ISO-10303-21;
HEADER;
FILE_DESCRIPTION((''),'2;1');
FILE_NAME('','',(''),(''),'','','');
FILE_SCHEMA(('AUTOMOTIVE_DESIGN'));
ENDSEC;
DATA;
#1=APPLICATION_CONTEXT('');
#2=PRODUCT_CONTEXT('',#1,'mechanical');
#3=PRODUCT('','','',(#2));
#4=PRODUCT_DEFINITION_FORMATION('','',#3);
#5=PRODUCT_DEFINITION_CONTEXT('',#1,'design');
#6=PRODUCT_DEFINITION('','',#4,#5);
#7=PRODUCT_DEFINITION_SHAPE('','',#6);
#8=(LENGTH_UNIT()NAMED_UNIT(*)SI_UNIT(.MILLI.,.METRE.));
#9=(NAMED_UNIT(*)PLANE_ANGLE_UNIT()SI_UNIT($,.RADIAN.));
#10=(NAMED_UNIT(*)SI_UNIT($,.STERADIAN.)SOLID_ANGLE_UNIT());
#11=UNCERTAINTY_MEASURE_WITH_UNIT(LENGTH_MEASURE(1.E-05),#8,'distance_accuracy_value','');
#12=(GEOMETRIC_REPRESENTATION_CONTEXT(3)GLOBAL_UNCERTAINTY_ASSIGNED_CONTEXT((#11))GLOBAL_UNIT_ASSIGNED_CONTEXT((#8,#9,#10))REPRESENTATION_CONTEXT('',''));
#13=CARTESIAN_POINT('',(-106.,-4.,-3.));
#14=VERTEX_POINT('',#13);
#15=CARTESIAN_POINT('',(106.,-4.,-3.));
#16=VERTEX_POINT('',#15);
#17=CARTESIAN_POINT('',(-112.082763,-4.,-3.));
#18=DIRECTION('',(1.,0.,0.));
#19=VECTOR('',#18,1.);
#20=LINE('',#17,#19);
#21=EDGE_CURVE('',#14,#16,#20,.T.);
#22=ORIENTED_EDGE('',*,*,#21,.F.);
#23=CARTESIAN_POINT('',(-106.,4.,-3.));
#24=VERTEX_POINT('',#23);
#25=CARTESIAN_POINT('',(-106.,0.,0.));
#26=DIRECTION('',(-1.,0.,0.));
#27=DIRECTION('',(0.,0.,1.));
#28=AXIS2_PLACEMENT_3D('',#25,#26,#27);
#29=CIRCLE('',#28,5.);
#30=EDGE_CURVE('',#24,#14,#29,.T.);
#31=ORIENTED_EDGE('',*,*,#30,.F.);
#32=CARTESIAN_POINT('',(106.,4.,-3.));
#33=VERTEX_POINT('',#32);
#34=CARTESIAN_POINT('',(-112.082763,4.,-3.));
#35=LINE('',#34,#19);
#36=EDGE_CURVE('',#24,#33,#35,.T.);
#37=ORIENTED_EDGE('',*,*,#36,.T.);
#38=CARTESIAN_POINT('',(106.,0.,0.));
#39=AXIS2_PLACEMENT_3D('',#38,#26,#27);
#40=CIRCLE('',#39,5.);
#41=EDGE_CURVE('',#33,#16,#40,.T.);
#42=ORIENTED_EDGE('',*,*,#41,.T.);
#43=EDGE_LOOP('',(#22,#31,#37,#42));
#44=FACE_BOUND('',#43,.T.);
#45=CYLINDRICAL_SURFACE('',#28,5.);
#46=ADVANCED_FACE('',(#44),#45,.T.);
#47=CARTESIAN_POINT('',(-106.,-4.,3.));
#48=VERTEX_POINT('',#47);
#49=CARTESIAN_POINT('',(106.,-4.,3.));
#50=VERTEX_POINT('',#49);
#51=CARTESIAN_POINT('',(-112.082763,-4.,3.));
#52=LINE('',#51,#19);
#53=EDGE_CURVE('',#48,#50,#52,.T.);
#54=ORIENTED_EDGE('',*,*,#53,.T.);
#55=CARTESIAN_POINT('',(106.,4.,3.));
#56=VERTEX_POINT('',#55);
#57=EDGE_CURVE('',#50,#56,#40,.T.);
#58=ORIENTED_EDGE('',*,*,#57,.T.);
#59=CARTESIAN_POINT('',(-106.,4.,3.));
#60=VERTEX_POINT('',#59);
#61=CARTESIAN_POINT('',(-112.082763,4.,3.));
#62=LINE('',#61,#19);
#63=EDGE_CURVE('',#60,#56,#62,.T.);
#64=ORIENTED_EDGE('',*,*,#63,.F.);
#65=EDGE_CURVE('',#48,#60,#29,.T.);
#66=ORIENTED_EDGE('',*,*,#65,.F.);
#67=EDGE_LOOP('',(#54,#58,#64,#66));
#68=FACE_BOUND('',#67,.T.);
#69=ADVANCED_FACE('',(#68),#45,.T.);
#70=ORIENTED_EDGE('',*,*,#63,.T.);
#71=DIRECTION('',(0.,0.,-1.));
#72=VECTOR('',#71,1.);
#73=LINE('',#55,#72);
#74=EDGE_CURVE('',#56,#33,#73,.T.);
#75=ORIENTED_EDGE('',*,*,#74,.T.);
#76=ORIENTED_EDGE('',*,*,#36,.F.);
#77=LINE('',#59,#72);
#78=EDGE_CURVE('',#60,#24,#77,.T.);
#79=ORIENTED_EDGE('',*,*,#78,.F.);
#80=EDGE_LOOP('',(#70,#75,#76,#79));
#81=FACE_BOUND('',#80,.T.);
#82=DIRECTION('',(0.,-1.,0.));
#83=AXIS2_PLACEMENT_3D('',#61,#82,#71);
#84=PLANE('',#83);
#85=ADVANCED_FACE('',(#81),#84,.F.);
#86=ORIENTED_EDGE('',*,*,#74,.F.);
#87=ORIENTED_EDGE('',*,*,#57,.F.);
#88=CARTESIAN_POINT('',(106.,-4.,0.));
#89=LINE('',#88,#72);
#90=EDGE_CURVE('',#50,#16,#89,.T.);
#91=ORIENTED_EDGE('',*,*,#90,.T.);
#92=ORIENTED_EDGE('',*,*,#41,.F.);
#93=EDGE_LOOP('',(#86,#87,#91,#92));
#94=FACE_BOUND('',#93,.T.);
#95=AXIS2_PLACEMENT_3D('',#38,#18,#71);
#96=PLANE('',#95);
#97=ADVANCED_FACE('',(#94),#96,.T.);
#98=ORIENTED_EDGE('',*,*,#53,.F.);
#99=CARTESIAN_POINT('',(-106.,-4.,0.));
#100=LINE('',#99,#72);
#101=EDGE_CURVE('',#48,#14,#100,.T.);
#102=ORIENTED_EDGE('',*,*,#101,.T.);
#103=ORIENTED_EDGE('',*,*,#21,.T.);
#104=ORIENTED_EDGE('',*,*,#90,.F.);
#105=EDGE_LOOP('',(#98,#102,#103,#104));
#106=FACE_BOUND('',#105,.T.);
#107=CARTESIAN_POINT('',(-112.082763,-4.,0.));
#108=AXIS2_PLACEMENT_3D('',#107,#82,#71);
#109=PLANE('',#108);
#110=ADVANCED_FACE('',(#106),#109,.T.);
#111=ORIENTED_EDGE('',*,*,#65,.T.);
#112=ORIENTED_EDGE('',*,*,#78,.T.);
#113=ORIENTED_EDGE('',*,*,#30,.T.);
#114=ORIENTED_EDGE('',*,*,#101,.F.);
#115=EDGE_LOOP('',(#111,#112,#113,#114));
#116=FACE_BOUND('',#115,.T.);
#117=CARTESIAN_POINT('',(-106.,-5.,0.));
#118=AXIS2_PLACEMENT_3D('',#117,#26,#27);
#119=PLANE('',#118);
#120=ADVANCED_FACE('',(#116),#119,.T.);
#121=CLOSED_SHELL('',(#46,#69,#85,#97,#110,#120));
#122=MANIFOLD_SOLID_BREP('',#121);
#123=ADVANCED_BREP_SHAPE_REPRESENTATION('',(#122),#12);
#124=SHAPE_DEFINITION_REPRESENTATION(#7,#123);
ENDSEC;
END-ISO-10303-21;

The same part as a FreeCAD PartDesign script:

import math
import FreeCAD as App
import Part
import Sketcher

doc = App.newDocument("Part")
body = doc.addObject("PartDesign::Body", "Body")

# Sketch on XY plane
sketch1 = doc.addObject("Sketcher::SketchObject", "Sketch")
body.addObject(sketch1)
sketch1.AttachmentSupport = (doc.XY_Plane, [""])
sketch1.MapMode = "FlatFace"
sketch1.addGeometry([
    Part.LineSegment(App.Vector(-106, 0, 0), App.Vector(-106, -5, 0)),
    Part.LineSegment(App.Vector(-106, -5, 0), App.Vector(106, -5, 0)),
    Part.LineSegment(App.Vector(106, -5, 0), App.Vector(106, 0, 0)),
    Part.LineSegment(App.Vector(106, 0, 0), App.Vector(-106, 0, 0)),
], False)
sketch1.addConstraint([
    Sketcher.Constraint("Coincident", 0, 2, 1, 1),
    Sketcher.Constraint("Coincident", 1, 2, 2, 1),
    Sketcher.Constraint("Coincident", 2, 2, 3, 1),
    Sketcher.Constraint("Coincident", 3, 2, 0, 1),
    Sketcher.Constraint("Vertical", 0),
    Sketcher.Constraint("Horizontal", 1),
    Sketcher.Constraint("Vertical", 2),
    Sketcher.Constraint("Horizontal", 3),
    Sketcher.Constraint("Symmetric", 2, 2, 3, 2, -1, 1),
    Sketcher.Constraint("DistanceX", 1, 1, 1, 2, 212.0),
    Sketcher.Constraint("DistanceY", 0, 2, 0, 1, 5.0),
])
revolution = doc.addObject("PartDesign::Revolution", "Revolution")
body.addObject(revolution)
revolution.Profile = sketch1
revolution.ReferenceAxis = (sketch1, ["H_Axis"])
revolution.Angle = 360

# Sketch on YZ plane
sketch2 = doc.addObject("Sketcher::SketchObject", "Sketch001")
body.addObject(sketch2)
sketch2.AttachmentSupport = (doc.YZ_Plane, [""])
sketch2.MapMode = "FlatFace"
sketch2.AttachmentOffset = App.Placement(App.Vector(0, 0, -106), App.Rotation())
sketch2.addGeometry([
    Part.LineSegment(App.Vector(-4, -3, 0), App.Vector(-4, 3, 0)),
    Part.ArcOfCircle(Part.Circle(App.Vector(0, 0, 0), App.Vector(0, 0, 1), 5), math.radians(143.130102), math.radians(216.869898)),
    Part.ArcOfCircle(Part.Circle(App.Vector(0, 0, 0), App.Vector(0, 0, 1), 5), math.radians(-36.869898), math.radians(36.869898)),
    Part.LineSegment(App.Vector(4, 3, 0), App.Vector(4, -3, 0)),
], False)
sketch2.addConstraint([
    Sketcher.Constraint("Coincident", 0, 1, 1, 2),
    Sketcher.Constraint("Coincident", 1, 1, 0, 2),
    Sketcher.Constraint("Coincident", 2, 1, 3, 2),
    Sketcher.Constraint("Coincident", 3, 1, 2, 2),
    Sketcher.Constraint("Vertical", 0),
    Sketcher.Constraint("Vertical", 3),
    Sketcher.Constraint("Coincident", 1, 3, -1, 1),
    Sketcher.Constraint("Coincident", 2, 3, -1, 1),
    Sketcher.Constraint("Equal", 1, 2),
    Sketcher.Constraint("Horizontal", 0, 1, 2, 1),
    Sketcher.Constraint("Radius", 1, 5.0),
    Sketcher.Constraint("DistanceY", 0, 1, 0, 2, 6.0),
])
pocket1 = doc.addObject("PartDesign::Pocket", "Pocket")
body.addObject(pocket1)
pocket1.Profile = sketch2
pocket1.Length = 212
pocket1.Reversed = True

doc.recompute()
